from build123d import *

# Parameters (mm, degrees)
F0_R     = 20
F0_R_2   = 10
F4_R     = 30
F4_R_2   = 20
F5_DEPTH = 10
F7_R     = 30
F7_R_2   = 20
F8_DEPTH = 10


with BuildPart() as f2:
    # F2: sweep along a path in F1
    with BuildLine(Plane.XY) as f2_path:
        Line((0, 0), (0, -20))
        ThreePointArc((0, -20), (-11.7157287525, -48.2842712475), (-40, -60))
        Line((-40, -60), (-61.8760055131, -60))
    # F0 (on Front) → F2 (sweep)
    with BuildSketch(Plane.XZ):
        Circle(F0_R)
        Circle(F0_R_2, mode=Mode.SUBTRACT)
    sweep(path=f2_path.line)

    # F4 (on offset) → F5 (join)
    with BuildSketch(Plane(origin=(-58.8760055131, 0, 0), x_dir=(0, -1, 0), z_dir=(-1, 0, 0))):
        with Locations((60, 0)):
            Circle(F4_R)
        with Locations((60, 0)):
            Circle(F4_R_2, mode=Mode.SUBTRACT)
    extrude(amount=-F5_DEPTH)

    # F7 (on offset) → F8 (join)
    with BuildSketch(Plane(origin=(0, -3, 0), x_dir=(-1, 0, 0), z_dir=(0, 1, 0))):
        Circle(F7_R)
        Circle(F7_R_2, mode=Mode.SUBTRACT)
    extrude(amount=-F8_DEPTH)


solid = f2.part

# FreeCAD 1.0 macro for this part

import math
import FreeCAD as App
import Part
import Sketcher
from FreeCAD import Vector
Q = App.Units.Quantity

doc = App.newDocument("Part")
params = doc.addObject("Spreadsheet::Sheet", "Params")
for row, (alias, value) in enumerate([
    ("sketch1_diameter", "40 mm"),
    ("sketch1_diameter2", "20 mm"),
    ("sketch2_radius", "40 mm"),
    ("sketch2_height", "20 mm"),
    ("sketch3_diameter", "60 mm"),
    ("sketch3_diameter2", "40 mm"),
    ("pad1_length", "10 mm"),
    ("sketch4_diameter", "60 mm"),
    ("sketch4_diameter2", "40 mm"),
    ("pad2_length", "10 mm"),
], start=1):
    params.set(f"A{row}", alias)
    params.set(f"B{row}", "=" + value)
    params.setAlias(f"B{row}", alias)

body = doc.addObject("PartDesign::Body", "Body")

sketch1 = body.newObject("Sketcher::SketchObject", "Sketch")
sketch1.AttachmentSupport = (doc.getObject("XZ_Plane"), [""])
sketch1.MapMode = "FlatFace"
sketch1.addGeometry([
    Part.Circle(Vector(0, 0, 0), Vector(0, 0, 1), 20),
    Part.Circle(Vector(0, 0, 0), Vector(0, 0, 1), 10),
], False)
sketch1.addConstraint([
    Sketcher.Constraint("Coincident", 0, 3, -1, 1),
    Sketcher.Constraint("Coincident", 1, 3, -1, 1),
    Sketcher.Constraint("Diameter", 0, Q("40 mm")),
    Sketcher.Constraint("Diameter", 1, Q("20 mm")),
])
sketch1.setExpression("Constraints[2]", "Params.sketch1_diameter")
sketch1.setExpression("Constraints[3]", "Params.sketch1_diameter2")

sketch2 = body.newObject("Sketcher::SketchObject", "Sketch001")
sketch2.AttachmentSupport = (doc.getObject("XY_Plane"), [""])
sketch2.MapMode = "FlatFace"
sketch2.addGeometry([
    Part.LineSegment(Vector(0, 0, 0), Vector(0, -20, 0)),
    Part.ArcOfCircle(Part.Circle(Vector(-40, -20, 0), Vector(0, 0, 1), 40), math.radians(-90), math.radians(0)),
    Part.LineSegment(Vector(-40, -60, 0), Vector(-62, -60, 0)),
], False)
sketch2.addConstraint([
    Sketcher.Constraint("Tangent", 0, 2, 1, 2),
    Sketcher.Constraint("Tangent", 1, 1, 2, 1),
    Sketcher.Constraint("Vertical", 0),
    Sketcher.Constraint("Horizontal", 2),
    Sketcher.Constraint("Coincident", 0, 1, -1, 1),
    Sketcher.Constraint("Radius", 1, Q("40 mm")),
    Sketcher.Constraint("DistanceY", 0, 2, 0, 1, Q("20 mm")),
    Sketcher.Constraint("DistanceX", 2, 2, 2, 1, Q("21.876006 mm")),
])
sketch2.setExpression("Constraints[5]", "Params.sketch2_radius")
sketch2.setExpression("Constraints[6]", "Params.sketch2_height")
doc.recompute()

additivepipe = body.newObject("PartDesign::AdditivePipe", "AdditivePipe")
additivepipe.Profile = sketch1
additivepipe.Spine = (sketch2, ["Edge1", "Edge2", "Edge3"])

sketch3 = body.newObject("Sketcher::SketchObject", "Sketch002")
sketch3.AttachmentSupport = (doc.getObject("YZ_Plane"), [""])
sketch3.MapMode = "FlatFace"
sketch3.AttachmentOffset = App.Placement(Vector(0, 0, -58.876006), App.Rotation())
sketch3.addGeometry([
    Part.Circle(Vector(-60, 0, 0), Vector(0, 0, 1), 30),
    Part.Circle(Vector(-60, 0, 0), Vector(0, 0, 1), 20),
], False)
sketch3.addConstraint([
    Sketcher.Constraint("Coincident", 1, 3, 0, 3),
    Sketcher.Constraint("PointOnObject", 0, 3, -1),
    Sketcher.Constraint("Diameter", 0, Q("60 mm")),
    Sketcher.Constraint("Diameter", 1, Q("40 mm")),
    Sketcher.Constraint("DistanceX", 0, 3, -1, 1, Q("60 mm")),
])
sketch3.setExpression("Constraints[2]", "Params.sketch3_diameter")
sketch3.setExpression("Constraints[3]", "Params.sketch3_diameter2")
pad1 = body.newObject("PartDesign::Pad", "Pad")
pad1.Profile = sketch3
pad1.setExpression("Length", "Params.pad1_length")

sketch4 = body.newObject("Sketcher::SketchObject", "Sketch003")
sketch4.AttachmentSupport = (doc.getObject("XZ_Plane"), [""])
sketch4.MapMode = "FlatFace"
sketch4.AttachmentOffset = App.Placement(Vector(0, 0, 3), App.Rotation())
sketch4.addGeometry([
    Part.Circle(Vector(0, 0, 0), Vector(0, 0, 1), 30),
    Part.Circle(Vector(0, 0, 0), Vector(0, 0, 1), 20),
], False)
sketch4.addConstraint([
    Sketcher.Constraint("Coincident", 0, 3, -1, 1),
    Sketcher.Constraint("Coincident", 1, 3, -1, 1),
    Sketcher.Constraint("Diameter", 0, Q("60 mm")),
    Sketcher.Constraint("Diameter", 1, Q("40 mm")),
])
sketch4.setExpression("Constraints[2]", "Params.sketch4_diameter")
sketch4.setExpression("Constraints[3]", "Params.sketch4_diameter2")
pad2 = body.newObject("PartDesign::Pad", "Pad001")
pad2.Profile = sketch4
pad2.setExpression("Length", "Params.pad2_length")

doc.recompute()
